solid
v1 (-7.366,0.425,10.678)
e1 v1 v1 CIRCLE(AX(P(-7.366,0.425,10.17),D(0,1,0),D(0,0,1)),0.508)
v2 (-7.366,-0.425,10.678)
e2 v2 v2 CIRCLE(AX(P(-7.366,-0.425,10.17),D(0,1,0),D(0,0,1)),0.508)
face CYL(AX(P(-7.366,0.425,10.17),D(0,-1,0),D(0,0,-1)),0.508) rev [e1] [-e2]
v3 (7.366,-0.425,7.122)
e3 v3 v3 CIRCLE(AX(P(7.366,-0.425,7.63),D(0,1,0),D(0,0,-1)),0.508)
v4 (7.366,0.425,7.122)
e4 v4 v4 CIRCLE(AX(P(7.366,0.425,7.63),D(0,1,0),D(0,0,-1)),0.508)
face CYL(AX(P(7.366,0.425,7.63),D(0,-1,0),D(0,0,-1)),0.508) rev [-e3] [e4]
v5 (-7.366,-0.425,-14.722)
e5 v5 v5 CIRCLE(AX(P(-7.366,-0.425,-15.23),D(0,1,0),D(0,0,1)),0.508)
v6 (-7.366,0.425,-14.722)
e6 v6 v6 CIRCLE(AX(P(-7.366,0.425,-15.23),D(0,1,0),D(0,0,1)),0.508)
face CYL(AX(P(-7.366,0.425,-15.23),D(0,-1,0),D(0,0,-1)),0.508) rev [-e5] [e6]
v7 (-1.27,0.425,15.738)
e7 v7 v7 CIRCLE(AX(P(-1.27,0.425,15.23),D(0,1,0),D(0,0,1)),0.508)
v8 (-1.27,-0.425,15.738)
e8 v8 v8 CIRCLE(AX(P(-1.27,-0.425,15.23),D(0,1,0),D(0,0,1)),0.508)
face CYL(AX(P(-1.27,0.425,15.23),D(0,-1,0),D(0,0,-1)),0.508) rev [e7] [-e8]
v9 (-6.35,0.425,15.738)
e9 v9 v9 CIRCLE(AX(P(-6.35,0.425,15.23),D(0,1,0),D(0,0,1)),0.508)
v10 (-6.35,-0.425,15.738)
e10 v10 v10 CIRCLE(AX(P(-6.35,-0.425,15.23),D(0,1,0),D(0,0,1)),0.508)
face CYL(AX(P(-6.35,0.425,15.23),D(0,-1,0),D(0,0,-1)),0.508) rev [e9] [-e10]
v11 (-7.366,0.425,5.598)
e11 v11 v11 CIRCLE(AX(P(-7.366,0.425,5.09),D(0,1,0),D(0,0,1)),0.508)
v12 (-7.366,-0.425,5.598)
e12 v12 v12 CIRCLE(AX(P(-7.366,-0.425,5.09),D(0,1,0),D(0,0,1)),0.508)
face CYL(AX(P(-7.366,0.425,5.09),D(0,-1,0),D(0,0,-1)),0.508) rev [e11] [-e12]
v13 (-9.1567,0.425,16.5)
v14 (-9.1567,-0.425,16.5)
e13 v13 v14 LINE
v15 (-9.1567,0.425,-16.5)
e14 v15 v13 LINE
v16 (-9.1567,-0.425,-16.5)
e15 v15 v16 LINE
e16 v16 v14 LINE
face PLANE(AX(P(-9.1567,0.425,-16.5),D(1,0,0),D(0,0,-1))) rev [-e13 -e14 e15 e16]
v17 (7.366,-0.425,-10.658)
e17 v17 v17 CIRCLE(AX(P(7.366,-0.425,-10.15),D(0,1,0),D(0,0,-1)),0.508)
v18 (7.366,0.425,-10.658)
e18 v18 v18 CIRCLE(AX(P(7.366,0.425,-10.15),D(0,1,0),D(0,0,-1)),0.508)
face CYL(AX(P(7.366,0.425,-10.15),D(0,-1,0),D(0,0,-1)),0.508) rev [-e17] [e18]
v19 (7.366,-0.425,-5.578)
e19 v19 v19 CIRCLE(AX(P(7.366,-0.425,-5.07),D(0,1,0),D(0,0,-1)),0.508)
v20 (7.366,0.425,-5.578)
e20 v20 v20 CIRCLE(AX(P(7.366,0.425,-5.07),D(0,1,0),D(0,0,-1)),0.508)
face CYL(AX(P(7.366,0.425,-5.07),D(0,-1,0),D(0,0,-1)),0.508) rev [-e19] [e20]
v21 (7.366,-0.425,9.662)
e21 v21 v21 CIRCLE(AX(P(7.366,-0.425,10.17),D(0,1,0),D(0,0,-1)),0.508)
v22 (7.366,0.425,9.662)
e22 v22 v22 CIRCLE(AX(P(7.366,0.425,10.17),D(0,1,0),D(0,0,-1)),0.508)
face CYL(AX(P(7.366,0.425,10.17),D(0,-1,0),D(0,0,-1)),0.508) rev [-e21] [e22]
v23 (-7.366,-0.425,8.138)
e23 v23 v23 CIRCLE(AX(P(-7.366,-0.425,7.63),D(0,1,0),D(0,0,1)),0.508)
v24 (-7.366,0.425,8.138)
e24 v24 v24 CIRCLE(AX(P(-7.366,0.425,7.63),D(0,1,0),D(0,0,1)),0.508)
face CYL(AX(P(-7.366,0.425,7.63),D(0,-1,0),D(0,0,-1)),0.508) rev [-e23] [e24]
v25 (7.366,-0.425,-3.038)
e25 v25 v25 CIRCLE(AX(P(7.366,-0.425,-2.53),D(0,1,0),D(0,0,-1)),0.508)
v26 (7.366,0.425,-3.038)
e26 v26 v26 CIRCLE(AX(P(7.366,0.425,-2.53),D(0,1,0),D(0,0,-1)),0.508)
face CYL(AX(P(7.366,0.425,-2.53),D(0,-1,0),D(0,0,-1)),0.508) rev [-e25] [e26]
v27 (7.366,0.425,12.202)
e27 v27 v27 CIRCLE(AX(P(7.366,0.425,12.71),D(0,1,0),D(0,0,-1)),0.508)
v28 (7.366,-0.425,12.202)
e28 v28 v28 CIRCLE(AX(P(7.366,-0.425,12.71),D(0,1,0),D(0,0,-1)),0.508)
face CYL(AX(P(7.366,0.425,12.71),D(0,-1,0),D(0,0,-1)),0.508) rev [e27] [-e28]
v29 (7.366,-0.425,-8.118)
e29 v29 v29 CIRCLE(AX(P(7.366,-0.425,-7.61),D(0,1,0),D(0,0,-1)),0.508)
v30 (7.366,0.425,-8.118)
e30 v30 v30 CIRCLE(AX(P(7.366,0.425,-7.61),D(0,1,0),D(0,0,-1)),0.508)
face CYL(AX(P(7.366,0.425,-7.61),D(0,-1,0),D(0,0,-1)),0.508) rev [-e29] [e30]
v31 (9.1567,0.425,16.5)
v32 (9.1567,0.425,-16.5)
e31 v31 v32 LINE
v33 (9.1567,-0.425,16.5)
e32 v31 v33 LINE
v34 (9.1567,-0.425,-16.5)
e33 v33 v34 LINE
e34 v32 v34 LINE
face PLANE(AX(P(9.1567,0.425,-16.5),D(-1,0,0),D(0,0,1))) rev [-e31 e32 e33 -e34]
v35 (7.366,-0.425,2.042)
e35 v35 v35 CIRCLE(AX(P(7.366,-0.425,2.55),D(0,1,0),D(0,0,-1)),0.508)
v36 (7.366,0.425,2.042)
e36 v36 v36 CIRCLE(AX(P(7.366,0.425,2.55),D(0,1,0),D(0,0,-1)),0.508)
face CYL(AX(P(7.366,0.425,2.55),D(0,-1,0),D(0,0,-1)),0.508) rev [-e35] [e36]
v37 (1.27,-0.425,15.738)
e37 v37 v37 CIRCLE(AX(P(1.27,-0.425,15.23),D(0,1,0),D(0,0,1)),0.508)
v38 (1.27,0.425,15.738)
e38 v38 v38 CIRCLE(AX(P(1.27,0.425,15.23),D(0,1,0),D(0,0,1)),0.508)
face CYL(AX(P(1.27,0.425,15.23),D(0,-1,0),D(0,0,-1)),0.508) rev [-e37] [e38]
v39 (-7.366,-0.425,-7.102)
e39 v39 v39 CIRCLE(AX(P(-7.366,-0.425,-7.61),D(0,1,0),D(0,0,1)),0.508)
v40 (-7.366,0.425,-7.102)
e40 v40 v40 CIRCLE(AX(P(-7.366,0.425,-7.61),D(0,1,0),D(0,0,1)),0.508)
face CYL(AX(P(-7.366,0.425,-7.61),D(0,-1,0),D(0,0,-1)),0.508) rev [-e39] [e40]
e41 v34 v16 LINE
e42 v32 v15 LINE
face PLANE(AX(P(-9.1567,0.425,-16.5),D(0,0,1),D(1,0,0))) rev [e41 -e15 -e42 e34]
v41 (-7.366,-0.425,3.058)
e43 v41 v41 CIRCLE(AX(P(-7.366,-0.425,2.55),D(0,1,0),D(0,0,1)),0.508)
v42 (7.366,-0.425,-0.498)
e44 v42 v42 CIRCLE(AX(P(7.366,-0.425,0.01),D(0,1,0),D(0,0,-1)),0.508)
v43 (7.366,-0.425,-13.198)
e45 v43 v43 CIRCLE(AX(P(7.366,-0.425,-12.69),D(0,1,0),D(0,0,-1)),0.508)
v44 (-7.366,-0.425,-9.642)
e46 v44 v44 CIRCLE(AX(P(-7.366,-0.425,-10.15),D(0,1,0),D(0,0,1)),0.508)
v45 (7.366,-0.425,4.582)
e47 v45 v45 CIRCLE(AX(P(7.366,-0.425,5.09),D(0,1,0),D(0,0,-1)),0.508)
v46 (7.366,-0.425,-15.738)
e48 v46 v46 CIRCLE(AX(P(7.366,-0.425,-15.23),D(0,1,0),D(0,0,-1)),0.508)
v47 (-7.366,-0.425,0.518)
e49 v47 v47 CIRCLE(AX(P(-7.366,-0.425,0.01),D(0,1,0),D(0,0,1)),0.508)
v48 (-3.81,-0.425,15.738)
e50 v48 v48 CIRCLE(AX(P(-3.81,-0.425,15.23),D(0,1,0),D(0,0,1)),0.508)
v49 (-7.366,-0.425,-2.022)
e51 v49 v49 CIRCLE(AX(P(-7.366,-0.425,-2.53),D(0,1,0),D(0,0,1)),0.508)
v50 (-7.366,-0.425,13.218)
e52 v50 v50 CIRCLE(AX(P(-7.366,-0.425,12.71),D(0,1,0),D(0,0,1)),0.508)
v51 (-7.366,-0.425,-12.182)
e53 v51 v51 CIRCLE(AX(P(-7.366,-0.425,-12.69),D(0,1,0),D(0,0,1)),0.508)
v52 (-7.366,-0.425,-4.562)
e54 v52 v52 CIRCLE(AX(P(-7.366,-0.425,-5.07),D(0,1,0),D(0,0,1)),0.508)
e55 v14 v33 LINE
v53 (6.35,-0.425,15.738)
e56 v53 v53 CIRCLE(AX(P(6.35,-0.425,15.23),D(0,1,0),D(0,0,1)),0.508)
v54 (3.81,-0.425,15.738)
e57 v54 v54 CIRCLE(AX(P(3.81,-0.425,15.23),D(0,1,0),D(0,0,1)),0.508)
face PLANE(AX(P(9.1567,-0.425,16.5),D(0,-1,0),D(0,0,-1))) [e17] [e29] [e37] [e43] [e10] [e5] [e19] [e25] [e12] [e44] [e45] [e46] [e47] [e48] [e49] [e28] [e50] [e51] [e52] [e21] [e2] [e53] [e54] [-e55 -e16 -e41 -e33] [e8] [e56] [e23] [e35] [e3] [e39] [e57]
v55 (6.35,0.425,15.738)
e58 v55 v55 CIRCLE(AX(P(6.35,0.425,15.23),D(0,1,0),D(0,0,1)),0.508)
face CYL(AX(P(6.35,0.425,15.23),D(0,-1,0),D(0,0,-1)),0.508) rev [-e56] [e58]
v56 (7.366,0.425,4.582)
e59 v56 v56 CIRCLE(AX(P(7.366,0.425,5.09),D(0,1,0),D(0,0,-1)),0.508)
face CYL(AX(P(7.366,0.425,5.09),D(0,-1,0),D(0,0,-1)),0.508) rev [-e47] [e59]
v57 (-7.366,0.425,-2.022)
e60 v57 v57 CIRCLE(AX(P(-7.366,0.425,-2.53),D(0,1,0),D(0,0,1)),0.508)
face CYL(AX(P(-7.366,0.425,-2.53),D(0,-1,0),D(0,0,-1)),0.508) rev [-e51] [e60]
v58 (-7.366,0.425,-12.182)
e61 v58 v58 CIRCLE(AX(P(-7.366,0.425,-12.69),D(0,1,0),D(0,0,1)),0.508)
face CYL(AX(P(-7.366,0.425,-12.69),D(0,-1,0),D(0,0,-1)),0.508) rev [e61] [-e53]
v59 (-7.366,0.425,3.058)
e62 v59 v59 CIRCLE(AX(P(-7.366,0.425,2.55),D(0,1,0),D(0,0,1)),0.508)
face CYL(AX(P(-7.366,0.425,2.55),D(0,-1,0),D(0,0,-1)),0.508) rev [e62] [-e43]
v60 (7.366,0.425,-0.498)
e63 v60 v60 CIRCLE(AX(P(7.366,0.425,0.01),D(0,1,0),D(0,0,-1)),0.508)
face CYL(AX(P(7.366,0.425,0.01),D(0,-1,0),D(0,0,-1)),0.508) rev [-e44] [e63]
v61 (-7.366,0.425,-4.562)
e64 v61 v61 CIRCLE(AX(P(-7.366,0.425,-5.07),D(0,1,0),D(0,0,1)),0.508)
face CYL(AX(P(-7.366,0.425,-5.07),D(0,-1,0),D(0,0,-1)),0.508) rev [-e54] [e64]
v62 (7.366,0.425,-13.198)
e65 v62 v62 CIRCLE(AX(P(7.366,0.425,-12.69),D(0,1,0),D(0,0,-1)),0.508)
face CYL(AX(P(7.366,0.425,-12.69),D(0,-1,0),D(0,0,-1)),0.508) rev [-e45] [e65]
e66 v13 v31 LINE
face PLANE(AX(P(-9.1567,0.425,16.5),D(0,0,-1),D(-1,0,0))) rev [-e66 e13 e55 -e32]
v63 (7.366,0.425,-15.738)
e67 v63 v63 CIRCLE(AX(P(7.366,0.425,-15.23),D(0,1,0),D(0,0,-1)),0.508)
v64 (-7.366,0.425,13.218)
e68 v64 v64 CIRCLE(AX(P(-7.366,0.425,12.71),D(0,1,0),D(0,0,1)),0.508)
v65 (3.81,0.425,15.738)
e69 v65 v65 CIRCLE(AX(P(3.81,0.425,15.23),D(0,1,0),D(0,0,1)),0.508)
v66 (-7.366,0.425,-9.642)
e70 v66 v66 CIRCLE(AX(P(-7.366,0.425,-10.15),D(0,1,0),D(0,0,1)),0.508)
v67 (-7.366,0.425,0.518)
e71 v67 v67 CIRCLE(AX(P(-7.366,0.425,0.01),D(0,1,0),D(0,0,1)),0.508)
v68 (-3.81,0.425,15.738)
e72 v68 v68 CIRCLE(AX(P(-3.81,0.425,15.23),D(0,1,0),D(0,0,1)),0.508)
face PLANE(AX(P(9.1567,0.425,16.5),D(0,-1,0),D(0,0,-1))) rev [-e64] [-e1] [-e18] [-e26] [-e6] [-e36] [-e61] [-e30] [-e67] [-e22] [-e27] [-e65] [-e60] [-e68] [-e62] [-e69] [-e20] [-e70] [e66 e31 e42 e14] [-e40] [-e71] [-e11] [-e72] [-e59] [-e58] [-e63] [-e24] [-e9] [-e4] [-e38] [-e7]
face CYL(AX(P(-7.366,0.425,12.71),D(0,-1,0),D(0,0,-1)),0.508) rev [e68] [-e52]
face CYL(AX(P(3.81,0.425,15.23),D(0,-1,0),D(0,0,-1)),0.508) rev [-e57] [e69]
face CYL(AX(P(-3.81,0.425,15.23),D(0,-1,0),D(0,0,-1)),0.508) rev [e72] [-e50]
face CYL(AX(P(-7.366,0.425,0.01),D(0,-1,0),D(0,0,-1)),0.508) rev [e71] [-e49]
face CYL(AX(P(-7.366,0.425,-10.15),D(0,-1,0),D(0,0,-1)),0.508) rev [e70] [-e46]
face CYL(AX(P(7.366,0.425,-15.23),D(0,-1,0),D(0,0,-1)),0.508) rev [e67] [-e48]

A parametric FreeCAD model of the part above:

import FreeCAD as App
import Part
import Sketcher
Q = App.Units.Quantity

doc = App.newDocument("Part")
body = doc.addObject("PartDesign::Body", "Body")

# Sketch on XZ plane
sketch1 = body.newObject("Sketcher::SketchObject", "Sketch")
sketch1.AttachmentSupport = (doc.getObject("XZ_Plane"), [""])
sketch1.MapMode = "FlatFace"
sketch1.addGeometry([
    Part.LineSegment(App.Vector(-9.2, -16.5, 0), App.Vector(-9.2, 16.5, 0)),  # 0
    Part.LineSegment(App.Vector(-9.2, 16.5, 0), App.Vector(9.2, 16.5, 0)),  # 1
    Part.LineSegment(App.Vector(9.2, 16.5, 0), App.Vector(9.2, -16.5, 0)),  # 2
    Part.LineSegment(App.Vector(9.2, -16.5, 0), App.Vector(-9.2, -16.5, 0)),  # 3
    Part.Circle(App.Vector(-6.3, 15.2, 0), App.Vector(0, 0, 1), 0.5),  # 4
    Part.Circle(App.Vector(-7.4, 12.7, 0), App.Vector(0, 0, 1), 0.5),  # 5
    Part.Circle(App.Vector(-7.4, 10.2, 0), App.Vector(0, 0, 1), 0.5),  # 6
    Part.Circle(App.Vector(-3.8, 15.2, 0), App.Vector(0, 0, 1), 0.5),  # 7
    Part.Circle(App.Vector(-1.3, 15.2, 0), App.Vector(0, 0, 1), 0.5),  # 8
    Part.Circle(App.Vector(-7.4, 7.6, 0), App.Vector(0, 0, 1), 0.5),  # 9
    Part.Circle(App.Vector(-7.4, 5.1, 0), App.Vector(0, 0, 1), 0.5),  # 10
    Part.Circle(App.Vector(-7.4, 2.5, 0), App.Vector(0, 0, 1), 0.5),  # 11
    Part.Circle(App.Vector(-7.4, 0, 0), App.Vector(0, 0, 1), 0.5),  # 12
    Part.Circle(App.Vector(1.3, 15.2, 0), App.Vector(0, 0, 1), 0.5),  # 13
    Part.Circle(App.Vector(3.8, 15.2, 0), App.Vector(0, 0, 1), 0.5),  # 14
    Part.Circle(App.Vector(6.3, 15.2, 0), App.Vector(0, 0, 1), 0.5),  # 15
    Part.Circle(App.Vector(7.4, 12.7, 0), App.Vector(0, 0, 1), 0.5),  # 16
    Part.Circle(App.Vector(7.4, 10.2, 0), App.Vector(0, 0, 1), 0.5),  # 17
    Part.Circle(App.Vector(7.4, 7.6, 0), App.Vector(0, 0, 1), 0.5),  # 18
    Part.Circle(App.Vector(7.4, 5.1, 0), App.Vector(0, 0, 1), 0.5),  # 19
    Part.Circle(App.Vector(7.4, 2.5, 0), App.Vector(0, 0, 1), 0.5),  # 20
    Part.Circle(App.Vector(7.4, 0, 0), App.Vector(0, 0, 1), 0.5),  # 21
    Part.Circle(App.Vector(-7.4, -2.5, 0), App.Vector(0, 0, 1), 0.5),  # 22
    Part.Circle(App.Vector(-7.4, -5.1, 0), App.Vector(0, 0, 1), 0.5),  # 23
    Part.Circle(App.Vector(-7.4, -7.6, 0), App.Vector(0, 0, 1), 0.5),  # 24
    Part.Circle(App.Vector(-7.4, -10.2, 0), App.Vector(0, 0, 1), 0.5),  # 25
    Part.Circle(App.Vector(-7.4, -12.7, 0), App.Vector(0, 0, 1), 0.5),  # 26
    Part.Circle(App.Vector(-7.4, -15.2, 0), App.Vector(0, 0, 1), 0.5),  # 27
    Part.Circle(App.Vector(7.4, -2.5, 0), App.Vector(0, 0, 1), 0.5),  # 28
    Part.Circle(App.Vector(7.4, -5.1, 0), App.Vector(0, 0, 1), 0.5),  # 29
    Part.Circle(App.Vector(7.4, -7.6, 0), App.Vector(0, 0, 1), 0.5),  # 30
    Part.Circle(App.Vector(7.4, -10.2, 0), App.Vector(0, 0, 1), 0.5),  # 31
    Part.Circle(App.Vector(7.4, -12.7, 0), App.Vector(0, 0, 1), 0.5),  # 32
    Part.Circle(App.Vector(7.4, -15.2, 0), App.Vector(0, 0, 1), 0.5),  # 33
], False)
sketch1.addConstraint([
    Sketcher.Constraint("Coincident", 0, 2, 1, 1),
    Sketcher.Constraint("Coincident", 1, 2, 2, 1),
    Sketcher.Constraint("Coincident", 2, 2, 3, 1),
    Sketcher.Constraint("Coincident", 3, 2, 0, 1),
    Sketcher.Constraint("Vertical", 0),
    Sketcher.Constraint("Horizontal", 1),
    Sketcher.Constraint("Vertical", 2),
    Sketcher.Constraint("Horizontal", 3),
    Sketcher.Constraint("Equal", 4, 5),
    Sketcher.Constraint("Equal", 5, 6),
    Sketcher.Constraint("Equal", 6, 7),
    Sketcher.Constraint("Equal", 7, 8),
    Sketcher.Constraint("Equal", 8, 9),
    Sketcher.Constraint("Equal", 9, 10),
    Sketcher.Constraint("Equal", 10, 11),
    Sketcher.Constraint("Equal", 11, 12),
    Sketcher.Constraint("Equal", 12, 13),
    Sketcher.Constraint("Equal", 13, 14),
    Sketcher.Constraint("Equal", 14, 15),
    Sketcher.Constraint("Equal", 15, 16),
    Sketcher.Constraint("Equal", 16, 17),
    Sketcher.Constraint("Equal", 17, 18),
    Sketcher.Constraint("Equal", 18, 19),
    Sketcher.Constraint("Equal", 19, 20),
    Sketcher.Constraint("Equal", 20, 21),
    Sketcher.Constraint("Equal", 21, 22),
    Sketcher.Constraint("Equal", 22, 23),
    Sketcher.Constraint("Equal", 23, 24),
    Sketcher.Constraint("Equal", 24, 25),
    Sketcher.Constraint("Equal", 25, 26),
    Sketcher.Constraint("Equal", 26, 27),
    Sketcher.Constraint("Equal", 27, 28),
    Sketcher.Constraint("Equal", 28, 29),
    Sketcher.Constraint("Equal", 29, 30),
    Sketcher.Constraint("Equal", 30, 31),
    Sketcher.Constraint("Equal", 31, 32),
    Sketcher.Constraint("Equal", 32, 33),
    Sketcher.Constraint("Symmetric", 0, 2, 2, 2, -1, 1),
    Sketcher.Constraint("Symmetric", 8, 3, 13, 3, -2),
    Sketcher.Constraint("Symmetric", 7, 3, 14, 3, -2),
    Sketcher.Constraint("Symmetric", 4, 3, 15, 3, -2),
    Sketcher.Constraint("Symmetric", 5, 3, 16, 3, -2),
    Sketcher.Constraint("Symmetric", 6, 3, 17, 3, -2),
    Sketcher.Constraint("Symmetric", 9, 3, 18, 3, -2),
    Sketcher.Constraint("Symmetric", 10, 3, 19, 3, -2),
    Sketcher.Constraint("Symmetric", 11, 3, 20, 3, -2),
    Sketcher.Constraint("Symmetric", 12, 3, 21, 3, -2),
    Sketcher.Constraint("Symmetric", 22, 3, 28, 3, -2),
    Sketcher.Constraint("Symmetric", 23, 3, 29, 3, -2),
    Sketcher.Constraint("Symmetric", 24, 3, 30, 3, -2),
    Sketcher.Constraint("Symmetric", 25, 3, 31, 3, -2),
    Sketcher.Constraint("Symmetric", 26, 3, 32, 3, -2),
    Sketcher.Constraint("Symmetric", 27, 3, 33, 3, -2),
    Sketcher.Constraint("Horizontal", 4, 3, 7, 3),
    Sketcher.Constraint("Horizontal", 7, 3, 8, 3),
    Sketcher.Constraint("Vertical", 5, 3, 6, 3),
    Sketcher.Constraint("Vertical", 6, 3, 9, 3),
    Sketcher.Constraint("Vertical", 9, 3, 10, 3),
    Sketcher.Constraint("Vertical", 10, 3, 11, 3),
    Sketcher.Constraint("Vertical", 11, 3, 12, 3),
    Sketcher.Constraint("Vertical", 12, 3, 22, 3),
    Sketcher.Constraint("Vertical", 22, 3, 23, 3),
    Sketcher.Constraint("Vertical", 23, 3, 24, 3),
    Sketcher.Constraint("Vertical", 24, 3, 25, 3),
    Sketcher.Constraint("Vertical", 25, 3, 26, 3),
    Sketcher.Constraint("Vertical", 26, 3, 27, 3),
    Sketcher.Constraint("Diameter", 4, Q("0.04 in")),
    Sketcher.Constraint("DistanceY", 6, 3, 5, 3, Q("0.1 in")),
    Sketcher.Constraint("DistanceX", 4, 3, 7, 3, Q("0.1 in")),
    Sketcher.Constraint("DistanceX", 7, 3, 8, 3, Q("0.1 in")),
    Sketcher.Constraint("DistanceY", 9, 3, 6, 3, Q("0.1 in")),
    Sketcher.Constraint("DistanceY", 10, 3, 9, 3, Q("0.1 in")),
    Sketcher.Constraint("DistanceY", 11, 3, 10, 3, Q("0.1 in")),
    Sketcher.Constraint("DistanceY", 12, 3, 11, 3, Q("0.1 in")),
    Sketcher.Constraint("DistanceX", 8, 3, 13, 3, Q("0.1 in")),
    Sketcher.Constraint("DistanceY", 22, 3, 12, 3, Q("0.1 in")),
    Sketcher.Constraint("DistanceY", 23, 3, 22, 3, Q("0.1 in")),
    Sketcher.Constraint("DistanceY", 24, 3, 23, 3, Q("0.1 in")),
    Sketcher.Constraint("DistanceY", 25, 3, 24, 3, Q("0.1 in")),
    Sketcher.Constraint("DistanceY", 26, 3, 25, 3, Q("0.1 in")),
    Sketcher.Constraint("DistanceY", 27, 3, 26, 3, Q("0.1 in")),
    Sketcher.Constraint("DistanceX", 1, 1, 1, 2, Q("0.721 in")),
    Sketcher.Constraint("DistanceX", 5, 3, -1, 1, Q("0.29 in")),
    Sketcher.Constraint("DistanceY", 4, 3, 0, 2, Q("0.05 in")),
    Sketcher.Constraint("DistanceY", 2, 2, 33, 3, Q("0.05 in")),
    Sketcher.Constraint("DistanceY", 0, 1, 0, 2, Q("33 mm")),
])
pad1 = body.newObject("PartDesign::Pad", "Pad")
pad1.Profile = sketch1
pad1.Length = 0.85
pad1.Midplane = True

doc.recompute()
